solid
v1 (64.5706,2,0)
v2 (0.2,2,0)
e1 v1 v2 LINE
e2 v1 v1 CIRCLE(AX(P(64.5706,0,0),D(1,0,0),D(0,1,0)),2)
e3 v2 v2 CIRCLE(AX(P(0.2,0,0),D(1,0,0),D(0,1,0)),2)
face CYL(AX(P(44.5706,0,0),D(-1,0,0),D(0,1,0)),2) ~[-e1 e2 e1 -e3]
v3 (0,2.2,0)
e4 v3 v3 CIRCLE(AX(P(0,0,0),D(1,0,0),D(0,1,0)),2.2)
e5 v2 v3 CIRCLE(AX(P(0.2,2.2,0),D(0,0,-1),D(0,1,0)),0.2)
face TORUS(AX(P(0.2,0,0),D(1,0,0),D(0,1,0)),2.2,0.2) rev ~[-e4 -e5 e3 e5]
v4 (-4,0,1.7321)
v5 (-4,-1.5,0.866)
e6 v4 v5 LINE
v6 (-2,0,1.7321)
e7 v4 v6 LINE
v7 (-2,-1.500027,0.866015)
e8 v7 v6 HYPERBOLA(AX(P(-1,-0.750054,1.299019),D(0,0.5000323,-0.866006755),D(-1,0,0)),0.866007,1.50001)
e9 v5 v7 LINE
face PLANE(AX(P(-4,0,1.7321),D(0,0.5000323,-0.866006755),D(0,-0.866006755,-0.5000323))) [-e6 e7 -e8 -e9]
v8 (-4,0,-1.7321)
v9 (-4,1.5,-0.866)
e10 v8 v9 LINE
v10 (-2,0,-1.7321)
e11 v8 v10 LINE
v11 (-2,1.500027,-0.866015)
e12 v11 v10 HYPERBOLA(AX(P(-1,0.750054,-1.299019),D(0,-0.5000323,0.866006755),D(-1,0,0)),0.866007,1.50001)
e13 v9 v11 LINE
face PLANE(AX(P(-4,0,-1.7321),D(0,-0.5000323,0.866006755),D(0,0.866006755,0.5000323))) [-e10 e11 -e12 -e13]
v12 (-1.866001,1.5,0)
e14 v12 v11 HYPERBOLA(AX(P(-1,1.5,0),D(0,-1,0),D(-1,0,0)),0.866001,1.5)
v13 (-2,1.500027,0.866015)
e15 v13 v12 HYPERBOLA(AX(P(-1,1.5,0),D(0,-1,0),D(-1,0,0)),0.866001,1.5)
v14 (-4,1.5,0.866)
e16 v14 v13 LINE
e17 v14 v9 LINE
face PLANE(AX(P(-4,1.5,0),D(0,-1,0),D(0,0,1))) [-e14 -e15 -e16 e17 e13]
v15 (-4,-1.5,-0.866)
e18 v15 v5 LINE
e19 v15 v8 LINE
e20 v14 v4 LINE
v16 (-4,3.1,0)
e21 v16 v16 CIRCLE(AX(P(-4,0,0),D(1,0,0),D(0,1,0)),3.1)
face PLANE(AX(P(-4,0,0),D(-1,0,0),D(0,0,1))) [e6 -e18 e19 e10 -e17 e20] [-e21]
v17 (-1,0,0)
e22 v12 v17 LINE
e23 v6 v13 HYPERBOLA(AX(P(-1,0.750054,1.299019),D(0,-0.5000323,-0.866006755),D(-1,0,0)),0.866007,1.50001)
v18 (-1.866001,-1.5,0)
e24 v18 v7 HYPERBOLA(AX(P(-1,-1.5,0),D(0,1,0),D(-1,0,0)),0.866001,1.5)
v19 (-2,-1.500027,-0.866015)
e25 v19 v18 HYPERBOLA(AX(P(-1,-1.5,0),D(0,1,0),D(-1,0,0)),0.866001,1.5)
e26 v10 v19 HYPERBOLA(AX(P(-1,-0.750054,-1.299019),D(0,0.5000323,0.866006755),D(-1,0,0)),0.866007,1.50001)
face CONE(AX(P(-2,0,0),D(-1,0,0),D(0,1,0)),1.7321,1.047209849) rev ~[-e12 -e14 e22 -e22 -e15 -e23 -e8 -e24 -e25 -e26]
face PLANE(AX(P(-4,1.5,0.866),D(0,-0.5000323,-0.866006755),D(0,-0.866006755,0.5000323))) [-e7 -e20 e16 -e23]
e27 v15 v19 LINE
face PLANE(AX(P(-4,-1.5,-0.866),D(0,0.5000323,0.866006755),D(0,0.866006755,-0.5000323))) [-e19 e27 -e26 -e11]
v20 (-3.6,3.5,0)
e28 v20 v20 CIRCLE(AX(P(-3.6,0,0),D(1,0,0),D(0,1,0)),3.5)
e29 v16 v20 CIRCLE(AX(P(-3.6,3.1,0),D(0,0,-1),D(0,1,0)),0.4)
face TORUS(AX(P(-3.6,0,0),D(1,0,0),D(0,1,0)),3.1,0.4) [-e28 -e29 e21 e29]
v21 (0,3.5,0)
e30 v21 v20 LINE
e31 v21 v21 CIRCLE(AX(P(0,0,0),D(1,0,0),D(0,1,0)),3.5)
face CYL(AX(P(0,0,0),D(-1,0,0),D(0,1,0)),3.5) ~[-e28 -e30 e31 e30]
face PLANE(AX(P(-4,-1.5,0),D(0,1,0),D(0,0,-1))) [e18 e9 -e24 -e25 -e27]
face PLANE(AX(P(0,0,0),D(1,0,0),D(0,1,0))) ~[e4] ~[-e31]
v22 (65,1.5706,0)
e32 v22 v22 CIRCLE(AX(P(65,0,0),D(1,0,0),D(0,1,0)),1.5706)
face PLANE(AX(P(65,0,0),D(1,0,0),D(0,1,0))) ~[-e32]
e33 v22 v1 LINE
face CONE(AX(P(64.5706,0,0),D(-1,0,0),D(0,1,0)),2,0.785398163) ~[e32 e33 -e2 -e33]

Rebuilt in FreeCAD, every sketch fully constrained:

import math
import FreeCAD as App
import Part
import Sketcher


def edges_at(feature, points):
    """Names of the edges that pass closest to the given points."""
    edges = feature.Shape.Edges
    near = lambda p: min(range(len(edges)), key=lambda i: edges[i].distToShape(Part.Vertex(*p))[0])
    return sorted({f"Edge{near(p) + 1}" for p in points})


def add_polygon(sketch, points):
    """Adds a closed chain of lines whose ends are joined by coincident constraints."""
    first, n = sketch.GeometryCount, len(points)
    for a, b in zip(points, points[1:] + points[:1]):
        sketch.addGeometry(Part.LineSegment(App.Vector(*a, 0), App.Vector(*b, 0)), False)
    for i in range(n):
        sketch.addConstraint(Sketcher.Constraint("Coincident", first + i, 2, first + (i + 1) % n, 1))

doc = App.newDocument("Part")
body = doc.addObject("PartDesign::Body", "Body")

# Sketch on XY plane
sketch1 = doc.addObject("Sketcher::SketchObject", "Sketch")
body.addObject(sketch1)
sketch1.AttachmentSupport = (doc.XY_Plane, [""])
sketch1.MapMode = "FlatFace"
add_polygon(sketch1, [(-2, 1.7), (-1, 0), (65, 0), (65, 2), (0, 2), (0, 3.5), (-4, 3.5), (-4, 1.7)])  # lines 0-7
sketch1.addConstraint([
    Sketcher.Constraint("Horizontal", 1),
    Sketcher.Constraint("Vertical", 2),
    Sketcher.Constraint("Horizontal", 3),
    Sketcher.Constraint("Vertical", 4),
    Sketcher.Constraint("Horizontal", 5),
    Sketcher.Constraint("Vertical", 6),
    Sketcher.Constraint("Horizontal", 7),
    Sketcher.Constraint("PointOnObject", 0, 2, -1),
    Sketcher.Constraint("PointOnObject", 3, 2, -2),
    Sketcher.Constraint("Equal", 7, 2),
    Sketcher.Constraint("DistanceX", 3, 2, 3, 1, 65.0),
    Sketcher.Constraint("DistanceX", 5, 2, 5, 1, 4.0),
    Sketcher.Constraint("DistanceX", 7, 1, 7, 2, 2.0),
    Sketcher.Constraint("Distance", 0, 2.0),
    Sketcher.Constraint("DistanceX", 1, 1, 1, 2, 66.0),
    Sketcher.Constraint("DistanceY", 4, 1, 4, 2, 1.5),
])
revolution = doc.addObject("PartDesign::Revolution", "Revolution")
body.addObject(revolution)
revolution.Profile = sketch1
revolution.ReferenceAxis = (sketch1, ["H_Axis"])
revolution.Angle = 360

# Sketch on YZ plane
sketch2 = doc.addObject("Sketcher::SketchObject", "Sketch001")
body.addObject(sketch2)
sketch2.AttachmentSupport = (doc.YZ_Plane, [""])
sketch2.MapMode = "FlatFace"
sketch2.AttachmentOffset = App.Placement(App.Vector(0, 0, -4), App.Rotation())
sketch2.addGeometry([
    Part.LineSegment(App.Vector(1.5, 0.9, 0), App.Vector(0, 1.7, 0)),  # 0
    Part.ArcOfCircle(Part.Circle(App.Vector(0, 0, 0), App.Vector(0, 0, 1), 1.7), math.radians(30), math.radians(90)),  # 1
    Part.ArcOfCircle(Part.Circle(App.Vector(0, 0, 0), App.Vector(0, 0, 1), 1.7), math.radians(90), math.radians(150)),  # 2
    Part.LineSegment(App.Vector(0, 1.7, 0), App.Vector(-1.5, 0.9, 0)),  # 3
    Part.ArcOfCircle(Part.Circle(App.Vector(0, 0, 0), App.Vector(0, 0, 1), 1.7), math.radians(-30), math.radians(30)),  # 4
    Part.LineSegment(App.Vector(1.5, 0.9, 0), App.Vector(1.5, -0.9, 0)),  # 5
    Part.LineSegment(App.Vector(-1.5, 0.9, 0), App.Vector(-1.5, -0.9, 0)),  # 6
    Part.ArcOfCircle(Part.Circle(App.Vector(0, 0, 0), App.Vector(0, 0, 1), 1.7), math.radians(150), math.radians(210)),  # 7
    Part.LineSegment(App.Vector(-1.5, -0.9, 0), App.Vector(0, -1.7, 0)),  # 8
    Part.ArcOfCircle(Part.Circle(App.Vector(0, 0, 0), App.Vector(0, 0, 1), 1.7), math.radians(-150), math.radians(-90)),  # 9
    Part.ArcOfCircle(Part.Circle(App.Vector(0, 0, 0), App.Vector(0, 0, 1), 1.7), math.radians(-90), math.radians(-30)),  # 10
    Part.LineSegment(App.Vector(0, -1.7, 0), App.Vector(1.5, -0.9, 0)),  # 11
], False)
sketch2.addConstraint([
    Sketcher.Constraint("Coincident", 0, 1, 1, 1),
    Sketcher.Constraint("Coincident", 1, 2, 0, 2),
    Sketcher.Constraint("Coincident", 2, 1, 3, 1),
    Sketcher.Constraint("Coincident", 3, 2, 2, 2),
    Sketcher.Constraint("Coincident", 4, 1, 5, 2),
    Sketcher.Constraint("Coincident", 5, 1, 4, 2),
    Sketcher.Constraint("Coincident", 6, 1, 7, 1),
    Sketcher.Constraint("Coincident", 7, 2, 6, 2),
    Sketcher.Constraint("Coincident", 8, 1, 9, 1),
    Sketcher.Constraint("Coincident", 9, 2, 8, 2),
    Sketcher.Constraint("Coincident", 10, 1, 11, 1),
    Sketcher.Constraint("Coincident", 11, 2, 10, 2),
    Sketcher.Constraint("Vertical", 5),
    Sketcher.Constraint("Vertical", 6),
    Sketcher.Constraint("Coincident", 1, 3, -1, 1),
    Sketcher.Constraint("Coincident", 2, 3, -1, 1),
    Sketcher.Constraint("Coincident", 4, 3, -1, 1),
    Sketcher.Constraint("Coincident", 7, 3, -1, 1),
    Sketcher.Constraint("Coincident", 9, 3, -1, 1),
    Sketcher.Constraint("Coincident", 10, 3, -1, 1),
    Sketcher.Constraint("Coincident", 2, 1, 1, 2),
    Sketcher.Constraint("Coincident", 5, 1, 0, 1),
    Sketcher.Constraint("Coincident", 6, 1, 3, 2),
    Sketcher.Constraint("Coincident", 8, 1, 7, 2),
    Sketcher.Constraint("Coincident", 10, 1, 9, 2),
    Sketcher.Constraint("PointOnObject", 1, 2, -2),
    Sketcher.Constraint("PointOnObject", 9, 2, -2),
    Sketcher.Constraint("Parallel", 0, 8),
    Sketcher.Constraint("Parallel", 3, 11),
    Sketcher.Constraint("Radius", 1, 1.732),
    Sketcher.Constraint("DistanceX", -1, 1, 0, 1, 1.5),
])
pad1 = doc.addObject("PartDesign::Pad", "Pad")
body.addObject(pad1)
pad1.Profile = sketch2
pad1.Type = "UpToFirst"
doc.recompute()

fillet = doc.addObject("PartDesign::Fillet", "Fillet")
body.addObject(fillet)
fillet.Base = (pad1, edges_at(pad1, [(-4, -3.5, 0)]))
fillet.Radius = 0.4
doc.recompute()

chamfer = doc.addObject("PartDesign::Chamfer", "Chamfer")
body.addObject(chamfer)
chamfer.Base = (fillet, edges_at(fillet, [(65, -2, 0)]))
chamfer.ChamferType = "Two distances"
chamfer.Size = 0.4294
chamfer.Size2 = 0.4294
doc.recompute()

fillet2 = doc.addObject("PartDesign::Fillet", "Fillet001")
body.addObject(fillet2)
fillet2.Base = (chamfer, edges_at(chamfer, [(0, -2, 0)]))
fillet2.Radius = 0.2

doc.recompute()
